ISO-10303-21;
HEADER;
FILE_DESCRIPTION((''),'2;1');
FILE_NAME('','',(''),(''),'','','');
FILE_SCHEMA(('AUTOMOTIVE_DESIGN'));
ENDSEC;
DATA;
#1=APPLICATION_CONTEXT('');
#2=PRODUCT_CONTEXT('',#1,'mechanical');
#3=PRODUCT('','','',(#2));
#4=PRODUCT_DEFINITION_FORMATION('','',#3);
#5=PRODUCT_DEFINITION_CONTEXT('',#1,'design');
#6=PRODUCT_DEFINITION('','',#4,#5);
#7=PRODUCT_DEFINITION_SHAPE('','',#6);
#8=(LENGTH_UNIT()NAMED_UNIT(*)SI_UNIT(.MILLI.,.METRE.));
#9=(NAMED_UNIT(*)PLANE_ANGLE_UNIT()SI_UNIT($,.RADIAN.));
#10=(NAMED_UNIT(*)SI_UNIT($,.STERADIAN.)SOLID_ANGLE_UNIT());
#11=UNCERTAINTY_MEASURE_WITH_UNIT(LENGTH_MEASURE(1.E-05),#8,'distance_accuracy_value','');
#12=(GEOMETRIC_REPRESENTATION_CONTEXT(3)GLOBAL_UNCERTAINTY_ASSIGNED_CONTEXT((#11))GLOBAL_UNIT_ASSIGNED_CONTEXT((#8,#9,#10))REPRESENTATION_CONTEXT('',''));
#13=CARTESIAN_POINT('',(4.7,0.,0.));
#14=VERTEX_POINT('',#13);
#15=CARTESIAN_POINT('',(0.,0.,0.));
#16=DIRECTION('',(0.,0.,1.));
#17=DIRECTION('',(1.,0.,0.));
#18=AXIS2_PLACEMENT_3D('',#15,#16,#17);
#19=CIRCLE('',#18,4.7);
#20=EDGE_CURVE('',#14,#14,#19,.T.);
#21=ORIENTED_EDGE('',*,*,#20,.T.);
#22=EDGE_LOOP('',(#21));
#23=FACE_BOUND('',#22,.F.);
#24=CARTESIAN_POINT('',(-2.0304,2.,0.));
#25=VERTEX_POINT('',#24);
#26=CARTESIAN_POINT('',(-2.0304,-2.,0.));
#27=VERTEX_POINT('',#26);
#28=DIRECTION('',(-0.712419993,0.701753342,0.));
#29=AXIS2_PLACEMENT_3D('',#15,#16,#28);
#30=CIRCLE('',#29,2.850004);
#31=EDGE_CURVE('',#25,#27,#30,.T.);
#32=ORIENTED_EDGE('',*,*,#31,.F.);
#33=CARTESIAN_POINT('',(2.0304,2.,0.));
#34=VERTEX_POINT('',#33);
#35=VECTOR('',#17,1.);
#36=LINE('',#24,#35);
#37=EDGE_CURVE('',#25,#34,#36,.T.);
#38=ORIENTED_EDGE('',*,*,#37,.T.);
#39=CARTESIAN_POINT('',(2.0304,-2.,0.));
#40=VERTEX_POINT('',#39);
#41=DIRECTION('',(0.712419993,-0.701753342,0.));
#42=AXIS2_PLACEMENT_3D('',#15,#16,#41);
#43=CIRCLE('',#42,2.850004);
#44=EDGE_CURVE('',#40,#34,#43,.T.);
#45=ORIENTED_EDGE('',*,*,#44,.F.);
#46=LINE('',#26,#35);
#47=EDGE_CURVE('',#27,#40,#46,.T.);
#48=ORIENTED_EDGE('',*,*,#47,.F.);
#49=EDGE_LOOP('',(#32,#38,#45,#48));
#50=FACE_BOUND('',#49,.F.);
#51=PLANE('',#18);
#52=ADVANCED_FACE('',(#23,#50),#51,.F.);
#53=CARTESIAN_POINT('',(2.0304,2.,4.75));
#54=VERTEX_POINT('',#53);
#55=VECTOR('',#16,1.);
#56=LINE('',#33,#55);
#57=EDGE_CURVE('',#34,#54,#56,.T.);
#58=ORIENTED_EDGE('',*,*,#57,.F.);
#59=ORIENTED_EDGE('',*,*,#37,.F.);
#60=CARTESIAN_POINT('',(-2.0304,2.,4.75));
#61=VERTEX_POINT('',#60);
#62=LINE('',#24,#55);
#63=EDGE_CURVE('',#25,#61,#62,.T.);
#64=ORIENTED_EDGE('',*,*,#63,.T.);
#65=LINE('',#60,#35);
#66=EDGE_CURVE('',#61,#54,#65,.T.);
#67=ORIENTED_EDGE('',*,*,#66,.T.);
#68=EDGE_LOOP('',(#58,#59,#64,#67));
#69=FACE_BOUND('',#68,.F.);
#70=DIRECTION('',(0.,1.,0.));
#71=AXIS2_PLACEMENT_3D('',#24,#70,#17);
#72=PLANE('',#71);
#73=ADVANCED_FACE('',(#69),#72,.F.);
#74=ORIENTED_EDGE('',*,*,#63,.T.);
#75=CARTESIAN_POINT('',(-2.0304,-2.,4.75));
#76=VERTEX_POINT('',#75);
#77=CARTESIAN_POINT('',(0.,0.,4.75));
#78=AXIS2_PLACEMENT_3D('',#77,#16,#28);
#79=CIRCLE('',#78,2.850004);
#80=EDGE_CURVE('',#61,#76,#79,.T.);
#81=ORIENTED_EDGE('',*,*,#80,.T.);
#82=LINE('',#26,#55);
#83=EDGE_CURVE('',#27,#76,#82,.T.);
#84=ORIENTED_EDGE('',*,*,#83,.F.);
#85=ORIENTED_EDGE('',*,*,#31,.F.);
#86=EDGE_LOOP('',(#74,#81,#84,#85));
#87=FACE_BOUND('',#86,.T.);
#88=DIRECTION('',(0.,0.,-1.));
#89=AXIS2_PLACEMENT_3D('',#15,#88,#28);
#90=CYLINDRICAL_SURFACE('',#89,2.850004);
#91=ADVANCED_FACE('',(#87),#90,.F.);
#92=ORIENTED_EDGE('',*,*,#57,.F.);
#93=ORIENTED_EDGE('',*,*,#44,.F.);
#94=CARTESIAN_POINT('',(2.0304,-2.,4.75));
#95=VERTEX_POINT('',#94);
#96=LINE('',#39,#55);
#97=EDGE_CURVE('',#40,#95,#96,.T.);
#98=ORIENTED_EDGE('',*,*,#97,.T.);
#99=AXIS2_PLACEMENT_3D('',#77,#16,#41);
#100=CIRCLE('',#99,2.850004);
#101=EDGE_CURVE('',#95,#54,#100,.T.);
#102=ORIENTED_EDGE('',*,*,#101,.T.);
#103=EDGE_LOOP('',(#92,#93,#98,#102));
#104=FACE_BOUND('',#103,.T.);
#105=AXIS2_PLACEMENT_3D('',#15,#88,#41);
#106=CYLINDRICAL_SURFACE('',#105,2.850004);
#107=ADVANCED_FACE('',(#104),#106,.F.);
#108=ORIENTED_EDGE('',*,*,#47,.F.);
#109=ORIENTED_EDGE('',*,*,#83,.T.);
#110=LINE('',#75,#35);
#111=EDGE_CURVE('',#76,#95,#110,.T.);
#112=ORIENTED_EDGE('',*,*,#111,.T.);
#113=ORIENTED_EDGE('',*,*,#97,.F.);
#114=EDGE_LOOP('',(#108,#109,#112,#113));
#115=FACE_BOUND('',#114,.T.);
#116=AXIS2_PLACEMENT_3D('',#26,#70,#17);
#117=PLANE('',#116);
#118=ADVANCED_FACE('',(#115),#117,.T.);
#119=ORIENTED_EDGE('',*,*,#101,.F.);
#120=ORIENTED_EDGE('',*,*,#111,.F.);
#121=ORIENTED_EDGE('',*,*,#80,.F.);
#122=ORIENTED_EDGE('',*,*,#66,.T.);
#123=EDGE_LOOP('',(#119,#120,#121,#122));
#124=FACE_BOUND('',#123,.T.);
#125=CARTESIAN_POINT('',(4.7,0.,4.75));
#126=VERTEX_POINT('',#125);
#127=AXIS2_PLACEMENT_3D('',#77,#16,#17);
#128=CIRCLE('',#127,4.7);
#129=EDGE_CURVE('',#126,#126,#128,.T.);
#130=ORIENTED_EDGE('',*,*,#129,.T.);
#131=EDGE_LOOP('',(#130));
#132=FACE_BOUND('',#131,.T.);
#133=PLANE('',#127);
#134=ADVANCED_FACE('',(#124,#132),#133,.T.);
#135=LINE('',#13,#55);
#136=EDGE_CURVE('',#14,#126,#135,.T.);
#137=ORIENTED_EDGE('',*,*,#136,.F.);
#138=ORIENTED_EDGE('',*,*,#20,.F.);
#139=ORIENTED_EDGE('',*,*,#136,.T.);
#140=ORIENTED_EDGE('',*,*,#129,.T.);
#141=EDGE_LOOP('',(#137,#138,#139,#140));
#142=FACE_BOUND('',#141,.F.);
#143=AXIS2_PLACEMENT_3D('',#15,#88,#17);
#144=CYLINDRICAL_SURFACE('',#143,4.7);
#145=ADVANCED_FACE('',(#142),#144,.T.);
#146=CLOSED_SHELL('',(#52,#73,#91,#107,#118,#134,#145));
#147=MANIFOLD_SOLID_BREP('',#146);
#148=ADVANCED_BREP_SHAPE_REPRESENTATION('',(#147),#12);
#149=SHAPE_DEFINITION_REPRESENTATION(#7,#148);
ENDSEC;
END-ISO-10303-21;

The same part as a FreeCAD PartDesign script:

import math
import FreeCAD as App
import Part
import Sketcher
Q = App.Units.Quantity

doc = App.newDocument("Part")
params = doc.addObject("Spreadsheet::Sheet", "Params")
for row, (alias, value) in enumerate([
    ("sketch1_diameter", "9.4 mm"),
    ("sketch1_radius", "2.85 mm"),
    ("pad1_length", "4.75 mm"),
], start=1):
    params.set(f"A{row}", alias)
    params.set(f"B{row}", "=" + value)
    params.setAlias(f"B{row}", alias)

body = doc.addObject("PartDesign::Body", "Body")

sketch1 = doc.addObject("Sketcher::SketchObject", "Sketch")
body.addObject(sketch1)
sketch1.AttachmentSupport = (doc.XY_Plane, [""])
sketch1.MapMode = "FlatFace"
sketch1.addGeometry(Part.Circle(App.Vector(0, 0, 0), App.Vector(0, 0, 1), 4.7), False)
sketch1.addGeometry(Part.ArcOfCircle(Part.Circle(App.Vector(0, 0, 0), App.Vector(0, 0, 1), 2.9), math.radians(135), math.radians(225)), False)
sketch1.addGeometry(Part.LineSegment(App.Vector(-2, 2, 0), App.Vector(2, 2, 0)), False)
sketch1.addGeometry(Part.ArcOfCircle(Part.Circle(App.Vector(0, 0, 0), App.Vector(0, 0, 1), 2.9), math.radians(-45), math.radians(45)), False)
sketch1.addGeometry(Part.LineSegment(App.Vector(2, -2, 0), App.Vector(-2, -2, 0)), False)
sketch1.addConstraint(Sketcher.Constraint("Coincident", 1, 1, 2, 1))
sketch1.addConstraint(Sketcher.Constraint("Coincident", 2, 2, 3, 2))
sketch1.addConstraint(Sketcher.Constraint("Coincident", 3, 1, 4, 1))
sketch1.addConstraint(Sketcher.Constraint("Coincident", 4, 2, 1, 2))
sketch1.addConstraint(Sketcher.Constraint("Horizontal", 2))
sketch1.addConstraint(Sketcher.Constraint("Horizontal", 4))
sketch1.addConstraint(Sketcher.Constraint("Coincident", 0, 3, -1, 1))
sketch1.addConstraint(Sketcher.Constraint("Coincident", 1, 3, -1, 1))
sketch1.addConstraint(Sketcher.Constraint("Coincident", 3, 3, -1, 1))
sketch1.addConstraint(Sketcher.Constraint("Equal", 1, 3))
sketch1.addConstraint(Sketcher.Constraint("Vertical", 2, 2, 3, 1))
sketch1.addConstraint(Sketcher.Constraint("DistanceY", -1, 1, 1, 1, Q("2 mm")))
sketch1.addConstraint(Sketcher.Constraint("Diameter", 0, Q("9.4 mm")))
sketch1.addConstraint(Sketcher.Constraint("Radius", 1, Q("2.85 mm")))
sketch1.setExpression("Constraints[12]", "Params.sketch1_diameter")
sketch1.setExpression("Constraints[13]", "Params.sketch1_radius")
pad1 = doc.addObject("PartDesign::Pad", "Pad")
body.addObject(pad1)
pad1.Profile = sketch1
pad1.setExpression("Length", "Params.pad1_length")

doc.recompute()
